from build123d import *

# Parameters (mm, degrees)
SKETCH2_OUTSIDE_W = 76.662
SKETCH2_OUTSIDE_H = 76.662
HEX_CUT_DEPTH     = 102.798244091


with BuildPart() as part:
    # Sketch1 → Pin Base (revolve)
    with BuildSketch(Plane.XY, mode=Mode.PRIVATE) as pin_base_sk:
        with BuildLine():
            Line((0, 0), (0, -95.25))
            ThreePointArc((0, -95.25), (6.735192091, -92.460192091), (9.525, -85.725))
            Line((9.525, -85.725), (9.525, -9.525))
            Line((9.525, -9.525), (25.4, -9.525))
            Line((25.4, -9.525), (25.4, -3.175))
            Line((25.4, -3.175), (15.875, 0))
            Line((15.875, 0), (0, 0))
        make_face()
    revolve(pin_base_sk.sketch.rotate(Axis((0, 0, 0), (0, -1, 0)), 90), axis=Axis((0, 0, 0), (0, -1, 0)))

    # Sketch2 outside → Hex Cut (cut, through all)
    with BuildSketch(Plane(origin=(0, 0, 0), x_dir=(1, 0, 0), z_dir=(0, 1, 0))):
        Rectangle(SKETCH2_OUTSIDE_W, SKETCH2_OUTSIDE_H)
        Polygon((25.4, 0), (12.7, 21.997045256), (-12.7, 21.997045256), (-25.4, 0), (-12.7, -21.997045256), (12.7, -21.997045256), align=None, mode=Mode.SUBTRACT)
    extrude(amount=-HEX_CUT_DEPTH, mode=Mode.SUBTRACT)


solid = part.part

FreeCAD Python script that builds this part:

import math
import FreeCAD as App
import Part
import Sketcher
from FreeCAD import Vector
Q = App.Units.Quantity

doc = App.newDocument("Part")
body = doc.addObject("PartDesign::Body", "Body")

# Sketch on XY plane
sketch1 = body.newObject("Sketcher::SketchObject", "Sketch")
sketch1.AttachmentSupport = (doc.getObject("XY_Plane"), [""])
sketch1.MapMode = "FlatFace"
sketch1.addGeometry([
    Part.LineSegment(Vector(0, 0, 0), Vector(0, -95, 0)),  # 0
    Part.ArcOfCircle(Part.Circle(Vector(0, -86, 0), Vector(0, 0, 1), 10), math.radians(-90), math.radians(0)),  # 1
    Part.LineSegment(Vector(10, -86, 0), Vector(10, -10, 0)),  # 2
    Part.LineSegment(Vector(10, -10, 0), Vector(25, -10, 0)),  # 3
    Part.LineSegment(Vector(25, -10, 0), Vector(25, -3, 0)),  # 4
    Part.LineSegment(Vector(25, -3, 0), Vector(16, 0, 0)),  # 5
    Part.LineSegment(Vector(16, 0, 0), Vector(0, 0, 0)),  # 6
], False)
sketch1.addConstraint([
    Sketcher.Constraint("Coincident", 0, 2, 1, 1),
    Sketcher.Constraint("Tangent", 1, 2, 2, 1),
    Sketcher.Constraint("Coincident", 2, 2, 3, 1),
    Sketcher.Constraint("Coincident", 3, 2, 4, 1),
    Sketcher.Constraint("Coincident", 4, 2, 5, 1),
    Sketcher.Constraint("Coincident", 5, 2, 6, 1),
    Sketcher.Constraint("Coincident", 6, 2, 0, 1),
    Sketcher.Constraint("Vertical", 0),
    Sketcher.Constraint("Vertical", 2),
    Sketcher.Constraint("Horizontal", 3),
    Sketcher.Constraint("Vertical", 4),
    Sketcher.Constraint("Horizontal", 6),
    Sketcher.Constraint("Coincident", 6, 2, -1, 1),
    Sketcher.Constraint("PointOnObject", 1, 3, -2),
    Sketcher.Constraint("Equal", 3, 6),
    Sketcher.Constraint("DistanceY", 2, 1, 2, 2, Q("3 in")),
    Sketcher.Constraint("DistanceX", -1, 1, 3, 2, Q("1 in")),
    Sketcher.Constraint("Radius", 1, Q("0.375 in")),
    Sketcher.Constraint("DistanceY", 0, 2, 0, 1, Q("3.75 in")),
    Sketcher.Constraint("DistanceY", 4, 1, 4, 2, Q("0.25 in")),
])
revolution = body.newObject("PartDesign::Revolution", "Revolution")
revolution.Profile = sketch1
revolution.ReferenceAxis = (sketch1, ["V_Axis"])
revolution.Angle = 360

# Sketch on XZ plane
sketch2 = body.newObject("Sketcher::SketchObject", "Sketch001")
sketch2.AttachmentSupport = (doc.getObject("XZ_Plane"), [""])
sketch2.MapMode = "FlatFace"
sketch2.addGeometry([
    Part.LineSegment(Vector(-38, -38, 0), Vector(-38, 38, 0)),  # 0
    Part.LineSegment(Vector(-38, 38, 0), Vector(38, 38, 0)),  # 1
    Part.LineSegment(Vector(38, 38, 0), Vector(38, -38, 0)),  # 2
    Part.LineSegment(Vector(38, -38, 0), Vector(-38, -38, 0)),  # 3
    Part.LineSegment(Vector(13, -22, 0), Vector(25, 0, 0)),  # 4
    Part.LineSegment(Vector(25, 0, 0), Vector(13, 22, 0)),  # 5
    Part.LineSegment(Vector(13, 22, 0), Vector(-13, 22, 0)),  # 6
    Part.LineSegment(Vector(-13, 22, 0), Vector(-25, 0, 0)),  # 7
    Part.LineSegment(Vector(-25, 0, 0), Vector(-13, -22, 0)),  # 8
    Part.LineSegment(Vector(-13, -22, 0), Vector(13, -22, 0)),  # 9
], False)
sketch2.addConstraint([
    Sketcher.Constraint("Coincident", 0, 2, 1, 1),
    Sketcher.Constraint("Coincident", 1, 2, 2, 1),
    Sketcher.Constraint("Coincident", 2, 2, 3, 1),
    Sketcher.Constraint("Coincident", 3, 2, 0, 1),
    Sketcher.Constraint("Coincident", 4, 2, 5, 1),
    Sketcher.Constraint("Coincident", 5, 2, 6, 1),
    Sketcher.Constraint("Coincident", 6, 2, 7, 1),
    Sketcher.Constraint("Coincident", 7, 2, 8, 1),
    Sketcher.Constraint("Coincident", 8, 2, 9, 1),
    Sketcher.Constraint("Coincident", 9, 2, 4, 1),
    Sketcher.Constraint("Vertical", 0),
    Sketcher.Constraint("Horizontal", 1),
    Sketcher.Constraint("Vertical", 2),
    Sketcher.Constraint("Horizontal", 3),
    Sketcher.Constraint("Horizontal", 6),
    Sketcher.Constraint("Horizontal", 9),
    Sketcher.Constraint("Symmetric", 0, 2, 2, 2, -1, 1),
    Sketcher.Constraint("Symmetric", 4, 2, 7, 2, -1, 1),
    Sketcher.Constraint("Symmetric", 5, 2, 8, 2, -1, 1),
    Sketcher.Constraint("PointOnObject", 4, 2, -1),
    Sketcher.Constraint("Parallel", 4, 7),
    Sketcher.Constraint("Vertical", 6, 2, 8, 2),
    Sketcher.Constraint("Equal", 3, 0),
    Sketcher.Constraint("DistanceX", 6, 2, 6, 1, Q("1 in")),
    Sketcher.Constraint("Distance", 4, Q("1 in")),
    Sketcher.Constraint("DistanceX", -1, 1, 4, 2, Q("1 in")),
    Sketcher.Constraint("DistanceX", 1, 1, 1, 2, Q("76.662 mm")),
])
pocket1 = body.newObject("PartDesign::Pocket", "Pocket")
pocket1.Profile = sketch2
pocket1.Type = "ThroughAll"
pocket1.Reversed = True

doc.recompute()
